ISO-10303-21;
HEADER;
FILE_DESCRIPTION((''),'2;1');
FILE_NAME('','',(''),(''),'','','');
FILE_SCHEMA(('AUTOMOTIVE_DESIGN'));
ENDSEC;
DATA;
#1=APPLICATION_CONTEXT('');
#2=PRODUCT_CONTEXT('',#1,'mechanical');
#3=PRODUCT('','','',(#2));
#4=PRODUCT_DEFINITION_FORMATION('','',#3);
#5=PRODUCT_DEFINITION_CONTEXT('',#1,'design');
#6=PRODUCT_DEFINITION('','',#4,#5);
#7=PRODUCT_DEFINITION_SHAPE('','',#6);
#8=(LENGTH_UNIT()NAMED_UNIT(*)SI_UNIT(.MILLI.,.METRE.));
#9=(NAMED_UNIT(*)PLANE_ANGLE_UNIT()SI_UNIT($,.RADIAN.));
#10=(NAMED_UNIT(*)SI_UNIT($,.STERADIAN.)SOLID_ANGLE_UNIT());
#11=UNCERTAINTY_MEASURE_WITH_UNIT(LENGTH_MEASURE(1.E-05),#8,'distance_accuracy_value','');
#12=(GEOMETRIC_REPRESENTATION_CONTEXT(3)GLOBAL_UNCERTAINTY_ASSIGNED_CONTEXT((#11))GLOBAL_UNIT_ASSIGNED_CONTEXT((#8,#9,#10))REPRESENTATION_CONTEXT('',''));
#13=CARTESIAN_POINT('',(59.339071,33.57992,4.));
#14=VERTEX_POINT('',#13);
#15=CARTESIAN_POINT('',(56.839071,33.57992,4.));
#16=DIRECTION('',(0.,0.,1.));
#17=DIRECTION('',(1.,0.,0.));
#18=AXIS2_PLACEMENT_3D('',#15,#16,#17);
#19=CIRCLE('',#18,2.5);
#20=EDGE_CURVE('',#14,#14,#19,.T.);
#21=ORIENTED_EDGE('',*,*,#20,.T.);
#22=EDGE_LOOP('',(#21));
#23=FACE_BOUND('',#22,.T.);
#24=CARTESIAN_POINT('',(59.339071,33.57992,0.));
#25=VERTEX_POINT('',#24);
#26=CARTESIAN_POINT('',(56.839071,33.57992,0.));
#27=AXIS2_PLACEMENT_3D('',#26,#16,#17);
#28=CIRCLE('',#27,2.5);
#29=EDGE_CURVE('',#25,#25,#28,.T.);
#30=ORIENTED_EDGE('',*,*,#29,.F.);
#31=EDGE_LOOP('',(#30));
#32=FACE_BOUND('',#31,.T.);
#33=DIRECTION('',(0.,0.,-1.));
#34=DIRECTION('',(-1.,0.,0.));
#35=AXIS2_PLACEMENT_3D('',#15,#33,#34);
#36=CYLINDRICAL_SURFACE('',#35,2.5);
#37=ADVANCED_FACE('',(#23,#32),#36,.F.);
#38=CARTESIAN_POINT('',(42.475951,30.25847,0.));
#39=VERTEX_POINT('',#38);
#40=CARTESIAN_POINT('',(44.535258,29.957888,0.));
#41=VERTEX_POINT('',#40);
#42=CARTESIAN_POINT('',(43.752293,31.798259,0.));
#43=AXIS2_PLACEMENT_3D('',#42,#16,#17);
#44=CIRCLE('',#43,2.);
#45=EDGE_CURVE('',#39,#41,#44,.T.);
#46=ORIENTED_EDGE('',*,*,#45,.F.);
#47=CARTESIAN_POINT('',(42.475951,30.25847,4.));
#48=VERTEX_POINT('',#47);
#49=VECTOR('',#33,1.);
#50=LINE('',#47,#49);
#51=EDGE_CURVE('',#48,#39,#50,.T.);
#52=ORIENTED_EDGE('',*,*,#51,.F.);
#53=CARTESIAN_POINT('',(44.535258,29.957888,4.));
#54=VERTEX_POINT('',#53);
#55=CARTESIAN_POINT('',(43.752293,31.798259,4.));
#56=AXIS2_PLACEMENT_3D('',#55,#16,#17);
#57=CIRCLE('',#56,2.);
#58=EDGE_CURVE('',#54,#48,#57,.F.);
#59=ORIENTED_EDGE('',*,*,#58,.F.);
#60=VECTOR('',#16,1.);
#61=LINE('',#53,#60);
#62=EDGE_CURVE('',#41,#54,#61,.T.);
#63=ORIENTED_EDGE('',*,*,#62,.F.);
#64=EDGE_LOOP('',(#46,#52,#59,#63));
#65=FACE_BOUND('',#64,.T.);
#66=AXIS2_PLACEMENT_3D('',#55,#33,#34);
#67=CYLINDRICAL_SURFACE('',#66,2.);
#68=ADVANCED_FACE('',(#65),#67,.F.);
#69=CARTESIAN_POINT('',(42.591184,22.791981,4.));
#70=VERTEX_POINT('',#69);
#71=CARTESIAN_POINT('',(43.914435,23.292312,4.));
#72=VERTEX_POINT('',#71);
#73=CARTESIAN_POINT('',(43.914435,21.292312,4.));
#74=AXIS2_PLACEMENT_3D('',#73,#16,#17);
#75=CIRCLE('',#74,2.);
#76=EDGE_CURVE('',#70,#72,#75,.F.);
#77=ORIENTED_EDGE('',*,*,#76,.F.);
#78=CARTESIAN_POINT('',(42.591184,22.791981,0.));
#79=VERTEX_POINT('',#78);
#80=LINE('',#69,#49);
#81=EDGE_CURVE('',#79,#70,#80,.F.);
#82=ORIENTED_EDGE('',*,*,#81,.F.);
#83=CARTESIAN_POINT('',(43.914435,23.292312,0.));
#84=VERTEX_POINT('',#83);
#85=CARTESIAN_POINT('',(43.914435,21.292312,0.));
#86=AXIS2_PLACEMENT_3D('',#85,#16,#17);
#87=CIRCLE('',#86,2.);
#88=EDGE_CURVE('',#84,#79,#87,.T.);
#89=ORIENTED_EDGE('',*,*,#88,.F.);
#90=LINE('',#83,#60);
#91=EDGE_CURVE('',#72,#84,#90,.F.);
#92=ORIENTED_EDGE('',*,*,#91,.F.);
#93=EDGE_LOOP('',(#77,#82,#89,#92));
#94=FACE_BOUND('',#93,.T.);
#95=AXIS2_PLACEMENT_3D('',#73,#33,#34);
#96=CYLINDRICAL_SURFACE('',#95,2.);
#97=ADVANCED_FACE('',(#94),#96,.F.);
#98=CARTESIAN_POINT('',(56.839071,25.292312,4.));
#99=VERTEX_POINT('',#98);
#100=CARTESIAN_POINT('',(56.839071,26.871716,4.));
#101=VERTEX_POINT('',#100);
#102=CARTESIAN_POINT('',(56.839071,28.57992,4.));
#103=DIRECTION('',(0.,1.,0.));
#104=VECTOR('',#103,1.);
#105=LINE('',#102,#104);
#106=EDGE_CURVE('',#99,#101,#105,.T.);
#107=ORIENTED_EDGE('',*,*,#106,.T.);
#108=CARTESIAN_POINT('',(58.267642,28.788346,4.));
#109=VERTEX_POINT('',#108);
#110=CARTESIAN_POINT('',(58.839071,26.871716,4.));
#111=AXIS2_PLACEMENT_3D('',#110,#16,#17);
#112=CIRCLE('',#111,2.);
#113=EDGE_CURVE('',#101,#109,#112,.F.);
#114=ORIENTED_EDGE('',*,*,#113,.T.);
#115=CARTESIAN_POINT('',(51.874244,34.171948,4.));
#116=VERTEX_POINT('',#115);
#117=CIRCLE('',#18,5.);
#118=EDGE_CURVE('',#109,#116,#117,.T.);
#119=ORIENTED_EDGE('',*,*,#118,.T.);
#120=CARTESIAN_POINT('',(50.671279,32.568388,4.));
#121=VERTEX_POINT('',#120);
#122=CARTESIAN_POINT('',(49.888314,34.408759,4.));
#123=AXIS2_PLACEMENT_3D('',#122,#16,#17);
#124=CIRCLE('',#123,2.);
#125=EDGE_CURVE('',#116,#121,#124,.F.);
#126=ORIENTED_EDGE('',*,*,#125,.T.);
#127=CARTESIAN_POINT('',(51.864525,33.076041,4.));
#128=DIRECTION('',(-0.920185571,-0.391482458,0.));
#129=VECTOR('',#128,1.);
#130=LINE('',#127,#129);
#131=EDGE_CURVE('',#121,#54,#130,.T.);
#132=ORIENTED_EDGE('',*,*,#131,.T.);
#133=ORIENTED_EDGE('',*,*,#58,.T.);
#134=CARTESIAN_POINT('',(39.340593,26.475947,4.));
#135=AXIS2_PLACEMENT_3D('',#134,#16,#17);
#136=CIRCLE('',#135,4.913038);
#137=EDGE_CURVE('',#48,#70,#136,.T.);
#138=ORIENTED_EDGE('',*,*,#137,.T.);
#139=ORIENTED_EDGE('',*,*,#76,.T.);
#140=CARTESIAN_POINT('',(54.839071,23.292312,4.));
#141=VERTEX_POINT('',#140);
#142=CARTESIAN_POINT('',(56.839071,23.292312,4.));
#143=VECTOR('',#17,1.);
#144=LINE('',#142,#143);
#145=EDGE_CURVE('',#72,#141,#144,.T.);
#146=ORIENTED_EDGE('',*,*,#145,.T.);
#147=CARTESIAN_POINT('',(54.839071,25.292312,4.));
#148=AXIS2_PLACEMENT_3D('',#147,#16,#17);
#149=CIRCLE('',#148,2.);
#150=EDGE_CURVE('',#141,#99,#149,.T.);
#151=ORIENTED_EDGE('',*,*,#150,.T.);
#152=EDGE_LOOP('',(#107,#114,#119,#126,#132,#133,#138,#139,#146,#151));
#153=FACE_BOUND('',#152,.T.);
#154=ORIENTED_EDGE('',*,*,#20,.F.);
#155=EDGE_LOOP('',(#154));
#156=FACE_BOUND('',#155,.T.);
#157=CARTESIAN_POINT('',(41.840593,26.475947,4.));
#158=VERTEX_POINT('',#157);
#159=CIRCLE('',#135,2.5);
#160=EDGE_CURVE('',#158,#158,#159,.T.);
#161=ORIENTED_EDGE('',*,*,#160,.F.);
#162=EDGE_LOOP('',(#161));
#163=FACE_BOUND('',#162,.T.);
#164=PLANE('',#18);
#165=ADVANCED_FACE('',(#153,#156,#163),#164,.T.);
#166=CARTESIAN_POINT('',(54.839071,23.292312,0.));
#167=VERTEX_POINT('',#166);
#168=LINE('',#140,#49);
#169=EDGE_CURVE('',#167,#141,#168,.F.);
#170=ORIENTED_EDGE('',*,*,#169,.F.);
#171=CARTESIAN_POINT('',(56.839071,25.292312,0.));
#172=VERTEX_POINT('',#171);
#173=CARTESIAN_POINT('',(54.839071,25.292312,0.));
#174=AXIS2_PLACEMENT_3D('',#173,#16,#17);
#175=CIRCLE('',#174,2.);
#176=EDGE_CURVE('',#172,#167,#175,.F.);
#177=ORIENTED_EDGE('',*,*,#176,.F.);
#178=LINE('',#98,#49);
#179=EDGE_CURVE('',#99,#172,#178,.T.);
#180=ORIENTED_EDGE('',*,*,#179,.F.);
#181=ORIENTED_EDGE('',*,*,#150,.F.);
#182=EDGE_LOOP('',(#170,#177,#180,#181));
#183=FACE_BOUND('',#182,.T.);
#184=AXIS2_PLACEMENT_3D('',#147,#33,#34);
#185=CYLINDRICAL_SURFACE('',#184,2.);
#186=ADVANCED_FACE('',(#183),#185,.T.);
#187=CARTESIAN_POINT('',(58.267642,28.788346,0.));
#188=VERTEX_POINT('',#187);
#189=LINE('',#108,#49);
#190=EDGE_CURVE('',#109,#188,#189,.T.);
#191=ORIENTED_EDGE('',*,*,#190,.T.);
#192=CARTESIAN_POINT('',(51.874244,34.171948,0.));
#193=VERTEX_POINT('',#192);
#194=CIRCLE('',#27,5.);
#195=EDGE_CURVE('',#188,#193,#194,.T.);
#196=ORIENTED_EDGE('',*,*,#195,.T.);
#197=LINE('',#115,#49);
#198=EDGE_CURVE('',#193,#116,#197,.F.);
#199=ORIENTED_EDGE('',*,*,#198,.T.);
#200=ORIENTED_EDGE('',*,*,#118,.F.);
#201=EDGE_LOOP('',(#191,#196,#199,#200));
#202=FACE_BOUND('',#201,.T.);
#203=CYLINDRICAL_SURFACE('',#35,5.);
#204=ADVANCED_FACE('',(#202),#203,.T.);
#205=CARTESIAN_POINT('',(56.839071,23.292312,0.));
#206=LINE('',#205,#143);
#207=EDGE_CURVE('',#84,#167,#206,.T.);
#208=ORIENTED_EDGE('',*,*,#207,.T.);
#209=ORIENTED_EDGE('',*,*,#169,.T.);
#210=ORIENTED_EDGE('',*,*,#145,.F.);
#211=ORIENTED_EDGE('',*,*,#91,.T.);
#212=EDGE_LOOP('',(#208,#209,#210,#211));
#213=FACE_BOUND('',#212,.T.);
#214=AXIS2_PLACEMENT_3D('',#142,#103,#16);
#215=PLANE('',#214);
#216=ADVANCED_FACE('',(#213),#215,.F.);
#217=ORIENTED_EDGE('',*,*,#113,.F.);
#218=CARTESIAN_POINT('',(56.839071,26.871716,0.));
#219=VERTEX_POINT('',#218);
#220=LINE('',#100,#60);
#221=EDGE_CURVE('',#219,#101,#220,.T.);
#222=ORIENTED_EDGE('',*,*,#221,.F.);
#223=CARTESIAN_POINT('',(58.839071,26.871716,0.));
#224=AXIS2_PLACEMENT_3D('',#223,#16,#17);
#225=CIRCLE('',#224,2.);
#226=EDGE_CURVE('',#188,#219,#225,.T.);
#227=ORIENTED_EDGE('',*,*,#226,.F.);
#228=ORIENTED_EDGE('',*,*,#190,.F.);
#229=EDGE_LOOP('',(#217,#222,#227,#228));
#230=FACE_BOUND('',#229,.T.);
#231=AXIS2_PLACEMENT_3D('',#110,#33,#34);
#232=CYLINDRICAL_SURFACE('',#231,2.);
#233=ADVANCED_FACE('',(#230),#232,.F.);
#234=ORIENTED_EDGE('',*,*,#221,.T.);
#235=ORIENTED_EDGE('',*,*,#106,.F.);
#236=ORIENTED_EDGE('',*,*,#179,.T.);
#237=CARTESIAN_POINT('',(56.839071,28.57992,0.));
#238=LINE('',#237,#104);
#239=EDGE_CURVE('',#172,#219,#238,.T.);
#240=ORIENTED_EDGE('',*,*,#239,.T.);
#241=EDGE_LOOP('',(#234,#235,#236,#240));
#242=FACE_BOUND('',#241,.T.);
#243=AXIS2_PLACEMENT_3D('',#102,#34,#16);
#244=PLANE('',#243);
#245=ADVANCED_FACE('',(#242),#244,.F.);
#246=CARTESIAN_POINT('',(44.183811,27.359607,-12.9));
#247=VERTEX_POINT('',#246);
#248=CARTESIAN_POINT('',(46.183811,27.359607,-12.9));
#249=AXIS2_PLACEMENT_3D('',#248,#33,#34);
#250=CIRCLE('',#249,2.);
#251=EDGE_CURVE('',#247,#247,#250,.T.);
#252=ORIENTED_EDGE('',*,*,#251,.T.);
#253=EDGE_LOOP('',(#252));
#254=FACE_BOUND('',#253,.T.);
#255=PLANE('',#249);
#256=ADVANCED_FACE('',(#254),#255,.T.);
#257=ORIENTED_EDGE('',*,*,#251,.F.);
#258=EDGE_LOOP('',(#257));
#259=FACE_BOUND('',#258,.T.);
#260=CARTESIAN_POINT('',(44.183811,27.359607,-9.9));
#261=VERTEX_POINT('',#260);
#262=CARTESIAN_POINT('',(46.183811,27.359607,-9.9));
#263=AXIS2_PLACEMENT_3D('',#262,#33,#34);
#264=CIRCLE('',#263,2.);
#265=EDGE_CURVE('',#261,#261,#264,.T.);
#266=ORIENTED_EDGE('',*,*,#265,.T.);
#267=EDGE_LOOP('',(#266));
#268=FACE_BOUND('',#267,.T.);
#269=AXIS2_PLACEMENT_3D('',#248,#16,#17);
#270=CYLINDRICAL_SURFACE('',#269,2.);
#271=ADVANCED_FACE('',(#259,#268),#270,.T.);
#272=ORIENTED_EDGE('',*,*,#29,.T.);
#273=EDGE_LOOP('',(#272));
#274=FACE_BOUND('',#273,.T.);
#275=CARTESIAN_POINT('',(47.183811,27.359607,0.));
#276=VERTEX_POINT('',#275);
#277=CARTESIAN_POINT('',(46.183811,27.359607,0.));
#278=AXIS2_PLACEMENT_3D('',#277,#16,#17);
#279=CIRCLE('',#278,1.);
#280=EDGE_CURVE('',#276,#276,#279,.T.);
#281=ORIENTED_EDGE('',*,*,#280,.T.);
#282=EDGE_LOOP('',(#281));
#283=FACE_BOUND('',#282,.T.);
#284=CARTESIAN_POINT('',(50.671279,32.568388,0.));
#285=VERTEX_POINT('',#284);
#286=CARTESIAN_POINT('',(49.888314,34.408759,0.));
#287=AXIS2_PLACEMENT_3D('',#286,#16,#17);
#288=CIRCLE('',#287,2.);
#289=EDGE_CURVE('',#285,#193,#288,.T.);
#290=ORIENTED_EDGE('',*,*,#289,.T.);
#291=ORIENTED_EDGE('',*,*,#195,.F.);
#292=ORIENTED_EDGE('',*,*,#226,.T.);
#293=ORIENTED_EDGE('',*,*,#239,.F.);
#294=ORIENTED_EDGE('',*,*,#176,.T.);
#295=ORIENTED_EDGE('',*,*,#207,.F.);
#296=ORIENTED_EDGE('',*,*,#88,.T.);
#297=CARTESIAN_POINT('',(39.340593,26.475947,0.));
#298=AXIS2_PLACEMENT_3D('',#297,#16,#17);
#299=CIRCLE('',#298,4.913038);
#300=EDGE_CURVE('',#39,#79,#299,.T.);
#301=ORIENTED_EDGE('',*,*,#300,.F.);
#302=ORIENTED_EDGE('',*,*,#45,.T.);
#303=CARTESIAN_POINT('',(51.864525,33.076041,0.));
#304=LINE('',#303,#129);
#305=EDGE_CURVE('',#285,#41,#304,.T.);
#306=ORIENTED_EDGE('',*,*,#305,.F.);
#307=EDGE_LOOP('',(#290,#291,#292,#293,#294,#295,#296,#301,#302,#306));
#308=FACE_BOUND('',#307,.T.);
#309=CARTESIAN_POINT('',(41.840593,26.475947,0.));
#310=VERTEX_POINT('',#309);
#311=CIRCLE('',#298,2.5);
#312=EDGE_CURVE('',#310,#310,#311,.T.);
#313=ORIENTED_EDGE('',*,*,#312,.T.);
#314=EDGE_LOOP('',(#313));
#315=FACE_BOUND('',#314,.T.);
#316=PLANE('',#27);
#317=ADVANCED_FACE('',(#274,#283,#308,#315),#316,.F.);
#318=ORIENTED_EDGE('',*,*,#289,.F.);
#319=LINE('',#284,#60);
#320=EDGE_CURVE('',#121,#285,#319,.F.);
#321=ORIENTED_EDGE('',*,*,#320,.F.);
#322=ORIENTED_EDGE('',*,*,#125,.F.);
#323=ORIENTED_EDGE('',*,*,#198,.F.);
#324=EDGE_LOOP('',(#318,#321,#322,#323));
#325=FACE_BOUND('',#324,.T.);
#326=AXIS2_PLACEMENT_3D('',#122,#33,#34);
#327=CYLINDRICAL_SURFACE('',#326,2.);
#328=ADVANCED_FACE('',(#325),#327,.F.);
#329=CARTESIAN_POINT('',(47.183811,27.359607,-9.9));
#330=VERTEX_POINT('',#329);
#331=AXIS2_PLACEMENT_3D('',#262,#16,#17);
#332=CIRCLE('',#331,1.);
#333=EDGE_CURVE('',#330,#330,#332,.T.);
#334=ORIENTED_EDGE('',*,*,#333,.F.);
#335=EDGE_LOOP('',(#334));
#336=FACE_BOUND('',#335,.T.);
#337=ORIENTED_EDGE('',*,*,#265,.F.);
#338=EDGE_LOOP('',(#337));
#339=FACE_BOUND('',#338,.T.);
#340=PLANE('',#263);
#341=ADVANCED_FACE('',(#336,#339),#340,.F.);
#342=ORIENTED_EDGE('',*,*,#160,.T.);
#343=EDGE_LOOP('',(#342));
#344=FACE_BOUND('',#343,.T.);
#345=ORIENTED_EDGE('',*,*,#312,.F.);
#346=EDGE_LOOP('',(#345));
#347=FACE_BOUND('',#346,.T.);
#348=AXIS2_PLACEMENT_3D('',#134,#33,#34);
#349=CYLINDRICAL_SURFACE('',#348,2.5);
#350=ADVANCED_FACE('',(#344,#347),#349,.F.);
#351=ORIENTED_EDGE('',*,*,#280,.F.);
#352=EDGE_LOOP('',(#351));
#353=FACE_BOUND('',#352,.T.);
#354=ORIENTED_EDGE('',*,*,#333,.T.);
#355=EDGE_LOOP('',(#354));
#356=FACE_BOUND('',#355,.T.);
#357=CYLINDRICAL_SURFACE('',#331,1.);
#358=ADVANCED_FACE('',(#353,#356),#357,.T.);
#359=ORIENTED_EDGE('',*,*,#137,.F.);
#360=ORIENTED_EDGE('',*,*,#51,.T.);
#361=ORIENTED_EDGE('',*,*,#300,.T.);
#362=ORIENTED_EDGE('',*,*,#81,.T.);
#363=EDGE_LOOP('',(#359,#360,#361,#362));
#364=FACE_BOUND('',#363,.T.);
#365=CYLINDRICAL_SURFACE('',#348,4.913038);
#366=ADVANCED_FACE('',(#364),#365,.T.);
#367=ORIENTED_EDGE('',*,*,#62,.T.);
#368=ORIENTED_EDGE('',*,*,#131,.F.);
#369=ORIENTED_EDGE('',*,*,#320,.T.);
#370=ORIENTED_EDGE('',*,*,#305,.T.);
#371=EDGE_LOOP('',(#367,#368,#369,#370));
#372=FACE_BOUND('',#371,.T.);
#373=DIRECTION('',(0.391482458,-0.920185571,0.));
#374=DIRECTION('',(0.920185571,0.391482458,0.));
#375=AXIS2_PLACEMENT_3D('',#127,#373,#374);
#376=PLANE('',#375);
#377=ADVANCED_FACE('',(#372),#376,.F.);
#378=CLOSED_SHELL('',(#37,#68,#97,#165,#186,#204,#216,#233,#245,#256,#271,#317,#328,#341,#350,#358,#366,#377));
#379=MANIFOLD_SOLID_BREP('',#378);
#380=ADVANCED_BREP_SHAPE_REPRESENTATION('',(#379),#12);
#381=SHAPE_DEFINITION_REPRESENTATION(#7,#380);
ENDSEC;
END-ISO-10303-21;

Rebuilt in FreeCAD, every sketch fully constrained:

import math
import FreeCAD as App
import Part
import Sketcher

V = App.Vector
Q = App.Units.Quantity


def edges_at(feature, points):
    """Names of the edges that pass closest to the given points."""
    edges = feature.Shape.Edges
    near = lambda p: min(range(len(edges)), key=lambda i: edges[i].distToShape(Part.Vertex(*p))[0])
    return sorted({f"Edge{near(p) + 1}" for p in points})

doc = App.newDocument("Part")
body = doc.addObject("PartDesign::Body", "Body")

# Sketch on XY plane
sketch1 = body.newObject("Sketcher::SketchObject", "Sketch")
sketch1.AttachmentSupport = (doc.getObject("XY_Plane"), [""])
sketch1.MapMode = "FlatFace"
sketch1.addGeometry([
    Part.LineSegment(V(56.839071, 23.292312, 0), V(56.839071, 28.57992, 0)),  # 0
    Part.ArcOfCircle(Part.Circle(V(56.839071, 33.57992, 0), V(0, 0, 1), 5), math.radians(-90), math.radians(185.783842)),  # 1
    Part.LineSegment(V(51.864525, 33.076041, 0), V(43.273147, 29.420937, 0)),  # 2
    Part.ArcOfCircle(Part.Circle(V(39.340593, 26.475947, 0), V(0, 0, 1), 4.913038), math.radians(36.82861), math.radians(319.609232)),  # 3
    Part.LineSegment(V(43.082573, 23.292312, 0), V(56.839071, 23.292312, 0)),  # 4
    Part.Circle(V(39.340593, 26.475947, 0), V(0, 0, 1), 2.5),  # 5
    Part.Circle(V(56.839071, 33.57992, 0), V(0, 0, 1), 2.5),  # 6
], False)
sketch1.addConstraint([
    Sketcher.Constraint("Coincident", 0, 2, 1, 1),
    Sketcher.Constraint("Coincident", 1, 2, 2, 1),
    Sketcher.Constraint("Coincident", 2, 2, 3, 1),
    Sketcher.Constraint("Coincident", 3, 2, 4, 1),
    Sketcher.Constraint("Coincident", 4, 2, 0, 1),
    Sketcher.Constraint("Vertical", 0),
    Sketcher.Constraint("Horizontal", 4),
    Sketcher.Constraint("Coincident", 5, 3, 3, 3),
    Sketcher.Constraint("Coincident", 6, 3, 1, 3),
    Sketcher.Constraint("Equal", 5, 6),
    Sketcher.Constraint("Vertical", 6, 3, 0, 2),
    Sketcher.Constraint("Diameter", 5, Q("5 mm")),
    Sketcher.Constraint("Radius", 1, Q("5 mm")),
    Sketcher.Constraint("Radius", 3, Q("4.913038 mm")),
    Sketcher.Constraint("Distance", 2, Q("9.336571 mm")),
    Sketcher.Constraint("DistanceX", 4, 1, 4, 2, Q("13.756498 mm")),
    Sketcher.Constraint("DistanceY", 0, 1, 0, 2, Q("5.287608 mm")),
    Sketcher.Constraint("DistanceX", -1, 1, 1, 3, Q("56.839071 mm")),
    Sketcher.Constraint("DistanceY", -1, 1, 1, 3, Q("33.57992 mm")),
    Sketcher.Constraint("DistanceY", -1, 1, 1, 2, Q("33.076041 mm")),
    Sketcher.Constraint("DistanceX", 3, 3, 1, 3, Q("17.498478 mm")),
])
pad1 = body.newObject("PartDesign::Pad", "Pad")
pad1.Profile = sketch1
pad1.Length = 4
doc.recompute()

fillet = body.newObject("PartDesign::Fillet", "Fillet")
fillet.Base = (pad1, edges_at(pad1, [
    (56.839, 28.58, 2),
    (56.839, 23.292, 2),
    (43.083, 23.292, 2),
    (43.273, 29.421, 2),
    (51.865, 33.076, 2),
]))
fillet.Radius = 2

# Sketch on XY plane
sketch2 = body.newObject("Sketcher::SketchObject", "Sketch001")
sketch2.AttachmentSupport = (doc.getObject("XY_Plane"), [""])
sketch2.MapMode = "FlatFace"
sketch2.AttachmentOffset = App.Placement(V(0, 0, 0.1), App.Rotation())
sketch2.addGeometry(Part.Circle(V(46.183811, 27.359607, 0), V(0, 0, 1), 1), False)
sketch2.addConstraint([
    Sketcher.Constraint("Diameter", 0, Q("2 mm")),
    Sketcher.Constraint("DistanceX", -1, 1, 0, 3, Q("46.183811 mm")),
    Sketcher.Constraint("DistanceY", -1, 1, 0, 3, Q("27.359607 mm")),
])
pad2 = body.newObject("PartDesign::Pad", "Pad001")
pad2.Profile = sketch2
pad2.Length = 10
pad2.Reversed = True

# Sketch on XY plane
sketch3 = body.newObject("Sketcher::SketchObject", "Sketch002")
sketch3.AttachmentSupport = (doc.getObject("XY_Plane"), [""])
sketch3.MapMode = "FlatFace"
sketch3.AttachmentOffset = App.Placement(V(0, 0, -9.9), App.Rotation())
sketch3.addGeometry(Part.Circle(V(46.183811, 27.359607, 0), V(0, 0, 1), 2), False)
sketch3.addConstraint([
    Sketcher.Constraint("Diameter", 0, Q("4 mm")),
    Sketcher.Constraint("DistanceX", -1, 1, 0, 3, Q("46.183811 mm")),
    Sketcher.Constraint("DistanceY", -1, 1, 0, 3, Q("27.359607 mm")),
])
pad3 = body.newObject("PartDesign::Pad", "Pad002")
pad3.Profile = sketch3
pad3.Length = 3
pad3.Reversed = True

doc.recompute()
